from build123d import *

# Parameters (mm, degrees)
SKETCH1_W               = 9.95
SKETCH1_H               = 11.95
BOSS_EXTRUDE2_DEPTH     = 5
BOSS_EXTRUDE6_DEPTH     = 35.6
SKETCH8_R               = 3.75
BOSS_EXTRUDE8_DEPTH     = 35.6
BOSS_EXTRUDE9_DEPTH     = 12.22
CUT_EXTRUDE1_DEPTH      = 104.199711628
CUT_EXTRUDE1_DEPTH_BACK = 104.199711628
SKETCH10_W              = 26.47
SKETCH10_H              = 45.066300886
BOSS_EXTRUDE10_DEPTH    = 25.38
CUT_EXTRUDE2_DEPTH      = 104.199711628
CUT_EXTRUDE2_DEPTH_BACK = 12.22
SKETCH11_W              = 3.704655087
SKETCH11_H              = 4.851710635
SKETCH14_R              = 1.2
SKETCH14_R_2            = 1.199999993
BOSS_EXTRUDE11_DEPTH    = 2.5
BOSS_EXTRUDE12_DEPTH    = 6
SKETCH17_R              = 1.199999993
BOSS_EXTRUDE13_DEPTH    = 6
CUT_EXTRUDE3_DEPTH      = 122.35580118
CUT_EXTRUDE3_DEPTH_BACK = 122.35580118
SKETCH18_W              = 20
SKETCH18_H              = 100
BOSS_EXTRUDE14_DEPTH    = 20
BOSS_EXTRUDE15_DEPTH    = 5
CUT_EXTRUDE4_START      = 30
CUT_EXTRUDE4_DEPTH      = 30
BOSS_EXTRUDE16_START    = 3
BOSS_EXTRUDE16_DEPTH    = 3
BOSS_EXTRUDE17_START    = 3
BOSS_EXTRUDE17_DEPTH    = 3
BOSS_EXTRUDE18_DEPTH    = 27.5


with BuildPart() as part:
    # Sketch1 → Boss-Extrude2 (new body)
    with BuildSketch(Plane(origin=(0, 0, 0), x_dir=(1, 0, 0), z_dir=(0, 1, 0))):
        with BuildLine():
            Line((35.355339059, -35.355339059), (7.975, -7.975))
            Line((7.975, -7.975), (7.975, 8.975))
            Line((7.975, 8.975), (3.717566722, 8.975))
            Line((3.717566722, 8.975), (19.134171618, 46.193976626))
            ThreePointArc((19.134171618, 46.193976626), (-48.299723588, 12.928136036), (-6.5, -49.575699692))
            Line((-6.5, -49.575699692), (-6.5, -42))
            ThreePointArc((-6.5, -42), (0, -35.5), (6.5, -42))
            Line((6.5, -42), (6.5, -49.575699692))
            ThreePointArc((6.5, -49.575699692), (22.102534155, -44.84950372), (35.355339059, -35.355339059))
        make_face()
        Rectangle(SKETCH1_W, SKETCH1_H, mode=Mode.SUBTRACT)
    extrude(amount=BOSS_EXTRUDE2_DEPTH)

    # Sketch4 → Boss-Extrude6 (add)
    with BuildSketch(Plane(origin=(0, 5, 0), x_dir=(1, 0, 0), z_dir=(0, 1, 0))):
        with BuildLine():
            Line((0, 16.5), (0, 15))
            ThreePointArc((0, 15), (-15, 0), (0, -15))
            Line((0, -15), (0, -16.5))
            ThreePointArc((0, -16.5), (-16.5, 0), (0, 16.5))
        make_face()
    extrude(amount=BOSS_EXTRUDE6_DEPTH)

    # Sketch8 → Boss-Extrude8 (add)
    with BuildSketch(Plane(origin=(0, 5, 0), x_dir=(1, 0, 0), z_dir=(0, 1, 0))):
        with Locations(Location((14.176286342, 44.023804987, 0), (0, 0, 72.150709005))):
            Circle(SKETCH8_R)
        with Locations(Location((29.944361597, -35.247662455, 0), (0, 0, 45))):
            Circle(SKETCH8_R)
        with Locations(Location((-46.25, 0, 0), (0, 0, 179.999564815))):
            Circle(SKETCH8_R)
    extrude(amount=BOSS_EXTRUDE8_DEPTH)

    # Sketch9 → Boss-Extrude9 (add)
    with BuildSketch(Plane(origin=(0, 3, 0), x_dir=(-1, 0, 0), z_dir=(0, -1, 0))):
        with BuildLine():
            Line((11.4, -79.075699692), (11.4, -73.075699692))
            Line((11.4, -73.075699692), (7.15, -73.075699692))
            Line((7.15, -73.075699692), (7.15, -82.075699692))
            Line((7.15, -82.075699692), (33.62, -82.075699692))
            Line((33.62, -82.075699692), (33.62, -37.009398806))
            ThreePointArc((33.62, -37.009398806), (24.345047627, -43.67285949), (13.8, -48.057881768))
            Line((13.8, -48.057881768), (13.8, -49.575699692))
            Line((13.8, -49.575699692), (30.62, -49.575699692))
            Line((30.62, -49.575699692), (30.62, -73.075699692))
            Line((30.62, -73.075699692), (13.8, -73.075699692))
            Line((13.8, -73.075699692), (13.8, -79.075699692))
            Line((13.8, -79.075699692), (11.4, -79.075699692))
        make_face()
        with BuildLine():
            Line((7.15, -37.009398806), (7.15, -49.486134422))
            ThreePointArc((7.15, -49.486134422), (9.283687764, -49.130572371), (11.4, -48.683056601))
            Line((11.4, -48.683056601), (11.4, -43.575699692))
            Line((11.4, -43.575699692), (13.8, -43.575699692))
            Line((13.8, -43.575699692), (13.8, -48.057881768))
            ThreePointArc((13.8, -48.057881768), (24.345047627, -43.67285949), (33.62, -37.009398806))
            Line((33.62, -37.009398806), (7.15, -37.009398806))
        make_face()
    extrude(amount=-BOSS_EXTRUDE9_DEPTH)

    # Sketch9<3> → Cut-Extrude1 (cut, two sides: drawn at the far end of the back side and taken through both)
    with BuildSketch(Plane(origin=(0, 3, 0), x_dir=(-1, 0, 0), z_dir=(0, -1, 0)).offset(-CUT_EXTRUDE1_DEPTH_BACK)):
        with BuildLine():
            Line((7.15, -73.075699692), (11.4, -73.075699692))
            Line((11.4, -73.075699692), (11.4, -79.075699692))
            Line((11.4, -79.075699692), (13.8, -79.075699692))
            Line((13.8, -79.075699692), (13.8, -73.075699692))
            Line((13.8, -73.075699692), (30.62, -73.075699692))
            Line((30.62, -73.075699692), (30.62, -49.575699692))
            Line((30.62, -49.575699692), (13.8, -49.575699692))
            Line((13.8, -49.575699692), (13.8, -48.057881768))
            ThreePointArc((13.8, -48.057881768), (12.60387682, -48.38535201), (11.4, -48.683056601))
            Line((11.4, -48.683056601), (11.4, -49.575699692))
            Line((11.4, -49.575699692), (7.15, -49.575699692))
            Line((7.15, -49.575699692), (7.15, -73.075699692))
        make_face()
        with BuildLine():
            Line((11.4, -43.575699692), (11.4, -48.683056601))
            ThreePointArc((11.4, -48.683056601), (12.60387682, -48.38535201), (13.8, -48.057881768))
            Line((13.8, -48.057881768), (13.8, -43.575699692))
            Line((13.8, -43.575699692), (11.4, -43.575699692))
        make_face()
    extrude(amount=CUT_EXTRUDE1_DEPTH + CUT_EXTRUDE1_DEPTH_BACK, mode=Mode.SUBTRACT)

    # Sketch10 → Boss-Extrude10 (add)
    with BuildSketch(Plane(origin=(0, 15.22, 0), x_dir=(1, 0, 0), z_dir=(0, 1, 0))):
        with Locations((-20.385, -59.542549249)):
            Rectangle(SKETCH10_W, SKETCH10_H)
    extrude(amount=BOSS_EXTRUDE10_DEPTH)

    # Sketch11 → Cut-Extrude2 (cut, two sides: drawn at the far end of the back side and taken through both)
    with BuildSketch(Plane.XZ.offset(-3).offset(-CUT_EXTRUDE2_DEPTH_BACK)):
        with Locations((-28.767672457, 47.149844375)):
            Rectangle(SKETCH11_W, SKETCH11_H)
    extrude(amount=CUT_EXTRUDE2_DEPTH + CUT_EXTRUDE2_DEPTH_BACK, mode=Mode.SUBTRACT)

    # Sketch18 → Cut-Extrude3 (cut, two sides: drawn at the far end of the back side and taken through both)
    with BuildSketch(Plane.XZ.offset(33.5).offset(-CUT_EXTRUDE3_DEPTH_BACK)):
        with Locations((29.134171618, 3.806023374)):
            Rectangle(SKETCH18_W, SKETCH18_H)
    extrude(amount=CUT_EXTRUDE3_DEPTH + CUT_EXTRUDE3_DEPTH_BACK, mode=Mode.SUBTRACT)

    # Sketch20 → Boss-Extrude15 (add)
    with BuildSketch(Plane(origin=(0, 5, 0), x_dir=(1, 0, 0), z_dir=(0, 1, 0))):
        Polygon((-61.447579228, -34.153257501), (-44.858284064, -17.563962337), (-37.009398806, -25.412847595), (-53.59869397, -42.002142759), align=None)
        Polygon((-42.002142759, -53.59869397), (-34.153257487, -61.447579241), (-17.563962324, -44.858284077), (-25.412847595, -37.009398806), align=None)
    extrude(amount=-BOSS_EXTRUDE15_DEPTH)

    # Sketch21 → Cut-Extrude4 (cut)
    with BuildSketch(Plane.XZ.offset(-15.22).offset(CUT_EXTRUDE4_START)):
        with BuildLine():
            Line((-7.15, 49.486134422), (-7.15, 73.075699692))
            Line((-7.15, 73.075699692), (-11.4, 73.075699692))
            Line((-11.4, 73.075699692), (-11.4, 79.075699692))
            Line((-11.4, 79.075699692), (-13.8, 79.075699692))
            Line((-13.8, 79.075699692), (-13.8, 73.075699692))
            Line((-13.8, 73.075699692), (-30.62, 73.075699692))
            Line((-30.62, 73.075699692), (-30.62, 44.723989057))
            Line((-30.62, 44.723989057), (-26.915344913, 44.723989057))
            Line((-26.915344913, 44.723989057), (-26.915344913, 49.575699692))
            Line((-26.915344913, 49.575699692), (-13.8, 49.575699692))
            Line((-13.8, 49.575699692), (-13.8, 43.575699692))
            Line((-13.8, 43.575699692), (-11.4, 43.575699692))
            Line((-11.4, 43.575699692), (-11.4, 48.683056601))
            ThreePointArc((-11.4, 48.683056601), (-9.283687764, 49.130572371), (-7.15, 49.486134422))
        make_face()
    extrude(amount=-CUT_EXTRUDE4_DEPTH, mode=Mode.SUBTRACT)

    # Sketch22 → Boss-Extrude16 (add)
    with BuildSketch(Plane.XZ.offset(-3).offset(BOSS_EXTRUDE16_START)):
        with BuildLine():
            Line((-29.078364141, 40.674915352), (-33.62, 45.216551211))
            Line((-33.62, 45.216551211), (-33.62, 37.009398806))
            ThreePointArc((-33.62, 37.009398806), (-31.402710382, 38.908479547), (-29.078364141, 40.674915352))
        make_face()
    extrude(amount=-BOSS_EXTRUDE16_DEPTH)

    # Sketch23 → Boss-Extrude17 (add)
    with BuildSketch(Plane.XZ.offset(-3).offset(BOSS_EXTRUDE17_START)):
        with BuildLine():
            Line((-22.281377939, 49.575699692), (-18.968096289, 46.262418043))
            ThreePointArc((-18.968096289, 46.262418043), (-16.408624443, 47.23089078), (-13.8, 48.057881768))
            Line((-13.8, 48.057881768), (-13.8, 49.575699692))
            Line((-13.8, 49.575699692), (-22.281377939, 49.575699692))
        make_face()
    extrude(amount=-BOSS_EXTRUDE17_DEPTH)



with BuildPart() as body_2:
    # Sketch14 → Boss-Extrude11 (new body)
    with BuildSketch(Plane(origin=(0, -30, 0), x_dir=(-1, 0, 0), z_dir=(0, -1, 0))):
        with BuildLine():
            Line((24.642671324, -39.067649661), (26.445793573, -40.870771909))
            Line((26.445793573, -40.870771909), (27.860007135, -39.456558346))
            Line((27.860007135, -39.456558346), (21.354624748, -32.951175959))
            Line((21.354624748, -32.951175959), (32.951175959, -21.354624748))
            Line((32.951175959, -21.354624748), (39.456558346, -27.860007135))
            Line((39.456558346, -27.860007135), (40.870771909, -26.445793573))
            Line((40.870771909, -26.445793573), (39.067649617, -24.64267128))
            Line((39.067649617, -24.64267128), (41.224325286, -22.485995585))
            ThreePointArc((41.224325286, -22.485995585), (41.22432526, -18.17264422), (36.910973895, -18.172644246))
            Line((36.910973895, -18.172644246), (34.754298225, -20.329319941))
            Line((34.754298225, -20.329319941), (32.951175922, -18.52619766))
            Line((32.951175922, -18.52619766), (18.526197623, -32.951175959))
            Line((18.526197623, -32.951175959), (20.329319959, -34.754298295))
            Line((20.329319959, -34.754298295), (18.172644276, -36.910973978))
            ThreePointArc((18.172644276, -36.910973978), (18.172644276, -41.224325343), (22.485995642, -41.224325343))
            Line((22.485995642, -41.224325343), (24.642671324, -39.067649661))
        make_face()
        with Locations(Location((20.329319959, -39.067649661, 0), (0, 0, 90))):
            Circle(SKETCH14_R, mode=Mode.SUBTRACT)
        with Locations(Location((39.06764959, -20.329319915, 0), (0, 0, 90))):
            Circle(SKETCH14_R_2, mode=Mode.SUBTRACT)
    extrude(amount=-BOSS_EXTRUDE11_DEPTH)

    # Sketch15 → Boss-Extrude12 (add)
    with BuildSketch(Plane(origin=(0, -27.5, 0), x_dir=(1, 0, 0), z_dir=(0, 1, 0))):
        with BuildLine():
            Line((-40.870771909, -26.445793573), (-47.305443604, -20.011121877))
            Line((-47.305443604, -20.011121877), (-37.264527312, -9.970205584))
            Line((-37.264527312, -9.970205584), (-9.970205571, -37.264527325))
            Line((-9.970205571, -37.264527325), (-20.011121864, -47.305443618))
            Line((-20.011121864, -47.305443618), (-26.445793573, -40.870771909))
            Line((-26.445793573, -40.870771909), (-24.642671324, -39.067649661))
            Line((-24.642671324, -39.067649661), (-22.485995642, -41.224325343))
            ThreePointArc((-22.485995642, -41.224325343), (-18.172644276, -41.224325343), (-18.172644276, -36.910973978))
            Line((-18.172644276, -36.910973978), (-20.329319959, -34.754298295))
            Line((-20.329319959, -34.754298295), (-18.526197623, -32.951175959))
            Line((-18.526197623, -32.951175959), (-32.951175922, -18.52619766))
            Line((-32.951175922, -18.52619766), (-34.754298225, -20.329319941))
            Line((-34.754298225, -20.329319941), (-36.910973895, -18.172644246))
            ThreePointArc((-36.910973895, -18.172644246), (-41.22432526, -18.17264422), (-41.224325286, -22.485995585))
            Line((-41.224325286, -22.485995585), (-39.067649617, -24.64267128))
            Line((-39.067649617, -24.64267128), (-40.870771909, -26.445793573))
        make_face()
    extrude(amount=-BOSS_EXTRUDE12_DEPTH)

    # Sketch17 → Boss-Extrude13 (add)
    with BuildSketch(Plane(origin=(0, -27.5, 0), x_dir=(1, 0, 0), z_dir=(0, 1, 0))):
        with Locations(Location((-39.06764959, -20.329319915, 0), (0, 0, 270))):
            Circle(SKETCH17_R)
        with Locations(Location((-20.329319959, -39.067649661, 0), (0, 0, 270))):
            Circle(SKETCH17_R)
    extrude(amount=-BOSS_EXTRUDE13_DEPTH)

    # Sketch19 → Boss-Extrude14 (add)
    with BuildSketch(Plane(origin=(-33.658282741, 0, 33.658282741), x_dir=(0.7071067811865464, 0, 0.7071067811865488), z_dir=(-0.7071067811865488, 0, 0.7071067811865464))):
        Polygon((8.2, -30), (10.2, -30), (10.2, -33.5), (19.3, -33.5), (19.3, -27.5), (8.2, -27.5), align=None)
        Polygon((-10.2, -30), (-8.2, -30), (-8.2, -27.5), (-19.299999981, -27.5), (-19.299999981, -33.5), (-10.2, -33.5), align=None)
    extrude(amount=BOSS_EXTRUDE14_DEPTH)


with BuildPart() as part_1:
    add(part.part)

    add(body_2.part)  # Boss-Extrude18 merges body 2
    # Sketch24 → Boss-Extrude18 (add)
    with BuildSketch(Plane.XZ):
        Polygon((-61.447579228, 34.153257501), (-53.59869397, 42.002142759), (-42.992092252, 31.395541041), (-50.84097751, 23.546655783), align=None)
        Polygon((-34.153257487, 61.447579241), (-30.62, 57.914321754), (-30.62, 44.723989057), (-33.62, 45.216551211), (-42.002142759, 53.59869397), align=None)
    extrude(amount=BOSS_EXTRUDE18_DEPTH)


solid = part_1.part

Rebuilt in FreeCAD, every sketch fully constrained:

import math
import FreeCAD as App
import Part
import Sketcher
Q = App.Units.Quantity

doc = App.newDocument("Part")
body = doc.addObject("PartDesign::Body", "Body")

# Sketch on XZ plane
sketch1 = body.newObject("Sketcher::SketchObject", "Sketch")
sketch1.AttachmentSupport = (doc.getObject("XZ_Plane"), [""])
sketch1.MapMode = "FlatFace"
sketch1.addGeometry([
    Part.LineSegment(App.Vector(35.4, 35.4, 0), App.Vector(8, 8, 0)),  # 0
    Part.LineSegment(App.Vector(8, 8, 0), App.Vector(8, -9, 0)),  # 1
    Part.LineSegment(App.Vector(8, -9, 0), App.Vector(3.7, -9, 0)),  # 2
    Part.LineSegment(App.Vector(3.7, -9, 0), App.Vector(19.1, -46.2, 0)),  # 3
    Part.ArcOfCircle(Part.Circle(App.Vector(0, 0, 0), App.Vector(0, 0, 1), 50), math.radians(97), math.radians(292)),  # 4
    Part.LineSegment(App.Vector(-6.5, 49.6, 0), App.Vector(-6.5, 42, 0)),  # 5
    Part.ArcOfCircle(Part.Circle(App.Vector(0, 42, 0), App.Vector(0, 0, 1), 6.5), math.radians(180), math.radians(360)),  # 6
    Part.LineSegment(App.Vector(6.5, 42, 0), App.Vector(6.5, 49.6, 0)),  # 7
    Part.ArcOfCircle(Part.Circle(App.Vector(0, 0, 0), App.Vector(0, 0, 1), 50), math.radians(45), math.radians(83)),  # 8
    Part.LineSegment(App.Vector(5, 6, 0), App.Vector(-5, 6, 0)),  # 9
    Part.LineSegment(App.Vector(-5, 6, 0), App.Vector(-5, -6, 0)),  # 10
    Part.LineSegment(App.Vector(-5, -6, 0), App.Vector(5, -6, 0)),  # 11
    Part.LineSegment(App.Vector(5, -6, 0), App.Vector(5, 6, 0)),  # 12
], False)
sketch1.addConstraint([
    Sketcher.Constraint("Coincident", 0, 2, 1, 1),
    Sketcher.Constraint("Coincident", 1, 2, 2, 1),
    Sketcher.Constraint("Coincident", 2, 2, 3, 1),
    Sketcher.Constraint("Coincident", 3, 2, 4, 2),
    Sketcher.Constraint("Coincident", 4, 1, 5, 1),
    Sketcher.Constraint("Tangent", 5, 2, 6, 1),
    Sketcher.Constraint("Tangent", 6, 2, 7, 1),
    Sketcher.Constraint("Coincident", 7, 2, 8, 2),
    Sketcher.Constraint("Coincident", 8, 1, 0, 1),
    Sketcher.Constraint("Coincident", 9, 2, 10, 1),
    Sketcher.Constraint("Coincident", 10, 2, 11, 1),
    Sketcher.Constraint("Coincident", 11, 2, 12, 1),
    Sketcher.Constraint("Coincident", 12, 2, 9, 1),
    Sketcher.Constraint("Vertical", 1),
    Sketcher.Constraint("Horizontal", 2),
    Sketcher.Constraint("Vertical", 5),
    Sketcher.Constraint("Vertical", 7),
    Sketcher.Constraint("Horizontal", 9),
    Sketcher.Constraint("Vertical", 10),
    Sketcher.Constraint("Horizontal", 11),
    Sketcher.Constraint("Vertical", 12),
    Sketcher.Constraint("Coincident", 4, 3, -1, 1),
    Sketcher.Constraint("Coincident", 8, 3, -1, 1),
    Sketcher.Constraint("Equal", 4, 8),
    Sketcher.Constraint("Symmetric", 9, 2, 11, 2, -1, 1),
    Sketcher.Constraint("PointOnObject", 6, 3, -2),
    Sketcher.Constraint("Radius", 4, 50.0),
    Sketcher.Constraint("Radius", 6, 6.5),
    Sketcher.Constraint("Angle", 0, Q("-135 deg")),
    Sketcher.Constraint("DistanceY", -1, 1, 6, 3, 42.0),
    Sketcher.Constraint("Angle", 3, Q("-67.5 deg")),
    Sketcher.Constraint("DistanceY", 9, 2, 0, 2, 2.0),
    Sketcher.Constraint("DistanceY", 2, 2, 10, 2, 3.0),
    Sketcher.Constraint("DistanceX", 11, 2, 1, 2, 3.0),
    Sketcher.Constraint("DistanceX", 9, 2, 9, 1, 9.95),
    Sketcher.Constraint("DistanceY", 1, 2, 1, 1, 16.95),
    Sketcher.Constraint("Distance", 3, 40.28553),
])
pad1 = body.newObject("PartDesign::Pad", "Pad")
pad1.Profile = sketch1
pad1.Length = 5
pad1.Reversed = True

# Sketch on XZ plane
sketch2 = body.newObject("Sketcher::SketchObject", "Sketch001")
sketch2.AttachmentSupport = (doc.getObject("XZ_Plane"), [""])
sketch2.MapMode = "FlatFace"
sketch2.AttachmentOffset = App.Placement(App.Vector(0, 0, -5), App.Rotation())
sketch2.addGeometry([
    Part.LineSegment(App.Vector(0, -15, 0), App.Vector(0, -16.5, 0)),
    Part.ArcOfCircle(Part.Circle(App.Vector(0, 0, 0), App.Vector(0, 0, 1), 16.5), math.radians(90), math.radians(270)),
    Part.LineSegment(App.Vector(0, 16.5, 0), App.Vector(0, 15, 0)),
    Part.ArcOfCircle(Part.Circle(App.Vector(0, 0, 0), App.Vector(0, 0, 1), 15), math.radians(90), math.radians(270)),
], False)
sketch2.addConstraint([
    Sketcher.Constraint("Coincident", 0, 2, 1, 2),
    Sketcher.Constraint("Coincident", 1, 1, 2, 1),
    Sketcher.Constraint("Coincident", 2, 2, 3, 1),
    Sketcher.Constraint("Coincident", 3, 2, 0, 1),
    Sketcher.Constraint("Vertical", 0),
    Sketcher.Constraint("Vertical", 2),
    Sketcher.Constraint("Coincident", 1, 3, -1, 1),
    Sketcher.Constraint("Coincident", 3, 3, -1, 1),
    Sketcher.Constraint("PointOnObject", 0, 2, -2),
    Sketcher.Constraint("PointOnObject", 1, 1, -2),
    Sketcher.Constraint("Radius", 3, 15.0),
    Sketcher.Constraint("Radius", 1, 16.5),
])
pad2 = body.newObject("PartDesign::Pad", "Pad001")
pad2.Profile = sketch2
pad2.Length = 35.6
pad2.Reversed = True

# Sketch on XZ plane
sketch3 = body.newObject("Sketcher::SketchObject", "Sketch002")
sketch3.AttachmentSupport = (doc.getObject("XZ_Plane"), [""])
sketch3.MapMode = "FlatFace"
sketch3.AttachmentOffset = App.Placement(App.Vector(0, 0, -5), App.Rotation())
sketch3.addGeometry([
    Part.Circle(App.Vector(14.2, -44, 0), App.Vector(0, 0, 1), 3.8),
    Part.Circle(App.Vector(29.9, 35.2, 0), App.Vector(0, 0, 1), 3.8),
    Part.Circle(App.Vector(-46.2, 0, 0), App.Vector(0, 0, 1), 3.8),
], False)
sketch3.addConstraint([
    Sketcher.Constraint("Equal", 0, 1),
    Sketcher.Constraint("Equal", 1, 2),
    Sketcher.Constraint("PointOnObject", 2, 3, -1),
    Sketcher.Constraint("Diameter", 0, 7.5),
    Sketcher.Constraint("DistanceX", 2, 3, -1, 1, 46.25),
    Sketcher.Constraint("DistanceX", -1, 1, 1, 3, 29.944362),
    Sketcher.Constraint("DistanceX", -1, 1, 0, 3, 14.176286),
    Sketcher.Constraint("DistanceY", 0, 3, -1, 1, 44.023805),
    Sketcher.Constraint("DistanceY", -1, 1, 1, 3, 35.247662),
])
pad3 = body.newObject("PartDesign::Pad", "Pad002")
pad3.Profile = sketch3
pad3.Length = 35.6
pad3.Reversed = True

# Sketch on XZ plane
sketch4 = body.newObject("Sketcher::SketchObject", "Sketch003")
sketch4.AttachmentSupport = (doc.getObject("XZ_Plane"), [""])
sketch4.MapMode = "FlatFace"
sketch4.AttachmentOffset = App.Placement(App.Vector(0, 0, -3), App.Rotation())
sketch4.addGeometry([
    Part.LineSegment(App.Vector(-11.4, 79.1, 0), App.Vector(-11.4, 73.1, 0)),  # 0
    Part.LineSegment(App.Vector(-11.4, 73.1, 0), App.Vector(-7.2, 73.1, 0)),  # 1
    Part.LineSegment(App.Vector(-7.2, 73.1, 0), App.Vector(-7.2, 82.1, 0)),  # 2
    Part.LineSegment(App.Vector(-7.2, 82.1, 0), App.Vector(-33.6, 82.1, 0)),  # 3
    Part.LineSegment(App.Vector(-33.6, 82.1, 0), App.Vector(-33.6, 37, 0)),  # 4
    Part.LineSegment(App.Vector(-33.6, 37, 0), App.Vector(-7.2, 37, 0)),  # 5
    Part.LineSegment(App.Vector(-7.2, 37, 0), App.Vector(-7.2, 49.5, 0)),  # 6
    Part.ArcOfCircle(Part.Circle(App.Vector(0, 0, 0), App.Vector(0, 0, 1), 50), math.radians(98.22), math.radians(103.18)),  # 7
    Part.LineSegment(App.Vector(-11.4, 48.7, 0), App.Vector(-11.4, 43.6, 0)),  # 8
    Part.LineSegment(App.Vector(-11.4, 43.6, 0), App.Vector(-13.8, 43.6, 0)),  # 9
    Part.LineSegment(App.Vector(-13.8, 43.6, 0), App.Vector(-13.8, 49.6, 0)),  # 10
    Part.LineSegment(App.Vector(-13.8, 49.6, 0), App.Vector(-30.6, 49.6, 0)),  # 11
    Part.LineSegment(App.Vector(-30.6, 49.6, 0), App.Vector(-30.6, 73.1, 0)),  # 12
    Part.LineSegment(App.Vector(-30.6, 73.1, 0), App.Vector(-13.8, 73.1, 0)),  # 13
    Part.LineSegment(App.Vector(-13.8, 73.1, 0), App.Vector(-13.8, 79.1, 0)),  # 14
    Part.LineSegment(App.Vector(-13.8, 79.1, 0), App.Vector(-11.4, 79.1, 0)),  # 15
], False)
sketch4.addConstraint([
    Sketcher.Constraint("Coincident", 0, 2, 1, 1),
    Sketcher.Constraint("Coincident", 1, 2, 2, 1),
    Sketcher.Constraint("Coincident", 2, 2, 3, 1),
    Sketcher.Constraint("Coincident", 3, 2, 4, 1),
    Sketcher.Constraint("Coincident", 4, 2, 5, 1),
    Sketcher.Constraint("Coincident", 5, 2, 6, 1),
    Sketcher.Constraint("Coincident", 6, 2, 7, 1),
    Sketcher.Constraint("Coincident", 7, 2, 8, 1),
    Sketcher.Constraint("Coincident", 8, 2, 9, 1),
    Sketcher.Constraint("Coincident", 9, 2, 10, 1),
    Sketcher.Constraint("Coincident", 10, 2, 11, 1),
    Sketcher.Constraint("Coincident", 11, 2, 12, 1),
    Sketcher.Constraint("Coincident", 12, 2, 13, 1),
    Sketcher.Constraint("Coincident", 13, 2, 14, 1),
    Sketcher.Constraint("Coincident", 14, 2, 15, 1),
    Sketcher.Constraint("Coincident", 15, 2, 0, 1),
    Sketcher.Constraint("Vertical", 0),
    Sketcher.Constraint("Horizontal", 1),
    Sketcher.Constraint("Vertical", 2),
    Sketcher.Constraint("Horizontal", 3),
    Sketcher.Constraint("Vertical", 4),
    Sketcher.Constraint("Horizontal", 5),
    Sketcher.Constraint("Vertical", 6),
    Sketcher.Constraint("Vertical", 8),
    Sketcher.Constraint("Horizontal", 9),
    Sketcher.Constraint("Vertical", 10),
    Sketcher.Constraint("Horizontal", 11),
    Sketcher.Constraint("Vertical", 12),
    Sketcher.Constraint("Horizontal", 13),
    Sketcher.Constraint("Vertical", 14),
    Sketcher.Constraint("Horizontal", 15),
    Sketcher.Constraint("Coincident", 7, 3, -1, 1),
    Sketcher.Constraint("Horizontal", 1, 2, 12, 2),
    Sketcher.Constraint("Vertical", 2, 2, 5, 2),
    Sketcher.Constraint("Vertical", 0, 2, 7, 2),
    Sketcher.Constraint("Vertical", 10, 2, 13, 2),
    Sketcher.Constraint("Equal", 0, 10),
    Sketcher.Constraint("Radius", 7, 50.0),
    Sketcher.Constraint("DistanceY", 0, 2, 0, 1, 6.0),
    Sketcher.Constraint("DistanceY", 2, 1, 2, 2, 9.0),
    Sketcher.Constraint("DistanceX", 9, 2, 9, 1, 2.4),
    Sketcher.Constraint("DistanceY", 12, 1, 12, 2, 23.5),
    Sketcher.Constraint("DistanceX", 4, 2, 11, 2, 3.0),
    Sketcher.Constraint("DistanceX", 1, 1, 1, 2, 4.25),
    Sketcher.Constraint("DistanceX", 3, 2, 3, 1, 26.47),
    Sketcher.Constraint("DistanceX", 0, 2, -1, 1, 11.4),
    Sketcher.Constraint("DistanceY", 4, 2, 4, 1, 45.066301),
    Sketcher.Constraint("DistanceY", -1, 1, 0, 2, 73.0757),
])
pad4 = body.newObject("PartDesign::Pad", "Pad003")
pad4.Profile = sketch4
pad4.Length = 12.22
pad4.Reversed = True

# Sketch on XZ plane
sketch5 = body.newObject("Sketcher::SketchObject", "Sketch004")
sketch5.AttachmentSupport = (doc.getObject("XZ_Plane"), [""])
sketch5.MapMode = "FlatFace"
sketch5.AttachmentOffset = App.Placement(App.Vector(0, 0, -3), App.Rotation())
sketch5.addGeometry([
    Part.LineSegment(App.Vector(-7.2, 73.1, 0), App.Vector(-11.4, 73.1, 0)),  # 0
    Part.LineSegment(App.Vector(-11.4, 73.1, 0), App.Vector(-11.4, 79.1, 0)),  # 1
    Part.LineSegment(App.Vector(-11.4, 79.1, 0), App.Vector(-13.8, 79.1, 0)),  # 2
    Part.LineSegment(App.Vector(-13.8, 79.1, 0), App.Vector(-13.8, 73.1, 0)),  # 3
    Part.LineSegment(App.Vector(-13.8, 73.1, 0), App.Vector(-30.6, 73.1, 0)),  # 4
    Part.LineSegment(App.Vector(-30.6, 73.1, 0), App.Vector(-30.6, 49.6, 0)),  # 5
    Part.LineSegment(App.Vector(-30.6, 49.6, 0), App.Vector(-13.8, 49.6, 0)),  # 6
    Part.LineSegment(App.Vector(-13.8, 49.6, 0), App.Vector(-13.8, 43.6, 0)),  # 7
    Part.LineSegment(App.Vector(-13.8, 43.6, 0), App.Vector(-11.4, 43.6, 0)),  # 8
    Part.LineSegment(App.Vector(-11.4, 43.6, 0), App.Vector(-11.4, 49.6, 0)),  # 9
    Part.LineSegment(App.Vector(-11.4, 49.6, 0), App.Vector(-7.2, 49.6, 0)),  # 10
    Part.LineSegment(App.Vector(-7.2, 49.6, 0), App.Vector(-7.2, 73.1, 0)),  # 11
], False)
sketch5.addConstraint([
    Sketcher.Constraint("Coincident", 0, 2, 1, 1),
    Sketcher.Constraint("Coincident", 1, 2, 2, 1),
    Sketcher.Constraint("Coincident", 2, 2, 3, 1),
    Sketcher.Constraint("Coincident", 3, 2, 4, 1),
    Sketcher.Constraint("Coincident", 4, 2, 5, 1),
    Sketcher.Constraint("Coincident", 5, 2, 6, 1),
    Sketcher.Constraint("Coincident", 6, 2, 7, 1),
    Sketcher.Constraint("Coincident", 7, 2, 8, 1),
    Sketcher.Constraint("Coincident", 8, 2, 9, 1),
    Sketcher.Constraint("Coincident", 9, 2, 10, 1),
    Sketcher.Constraint("Coincident", 10, 2, 11, 1),
    Sketcher.Constraint("Coincident", 11, 2, 0, 1),
    Sketcher.Constraint("Horizontal", 0),
    Sketcher.Constraint("Vertical", 1),
    Sketcher.Constraint("Horizontal", 2),
    Sketcher.Constraint("Vertical", 3),
    Sketcher.Constraint("Horizontal", 4),
    Sketcher.Constraint("Vertical", 5),
    Sketcher.Constraint("Horizontal", 6),
    Sketcher.Constraint("Vertical", 7),
    Sketcher.Constraint("Horizontal", 8),
    Sketcher.Constraint("Vertical", 9),
    Sketcher.Constraint("Horizontal", 10),
    Sketcher.Constraint("Vertical", 11),
    Sketcher.Constraint("Horizontal", 0, 2, 3, 2),
    Sketcher.Constraint("Horizontal", 6, 2, 9, 2),
    Sketcher.Constraint("Vertical", 3, 2, 6, 2),
    Sketcher.Constraint("Vertical", 1, 2, 8, 2),
    Sketcher.Constraint("Equal", 3, 7),
    Sketcher.Constraint("DistanceY", 1, 1, 1, 2, 6.0),
    Sketcher.Constraint("DistanceX", 2, 2, 2, 1, 2.4),
    Sketcher.Constraint("DistanceY", 5, 2, 5, 1, 23.5),
    Sketcher.Constraint("DistanceX", 0, 2, 0, 1, 4.25),
    Sketcher.Constraint("DistanceX", 4, 2, 4, 1, 16.82),
    Sketcher.Constraint("DistanceX", 0, 2, -1, 1, 11.4),
    Sketcher.Constraint("DistanceY", -1, 1, 0, 2, 73.0757),
])
pocket1 = body.newObject("PartDesign::Pocket", "Pocket")
pocket1.Profile = sketch5
pocket1.Type = "ThroughAll"
pocket1.Midplane = True

# Sketch on XZ plane
sketch6 = body.newObject("Sketcher::SketchObject", "Sketch005")
sketch6.AttachmentSupport = (doc.getObject("XZ_Plane"), [""])
sketch6.MapMode = "FlatFace"
sketch6.AttachmentOffset = App.Placement(App.Vector(0, 0, -15.22), App.Rotation())
sketch6.addGeometry([
    Part.LineSegment(App.Vector(-34, 37, 0), App.Vector(-34, 82, 0)),
    Part.LineSegment(App.Vector(-34, 82, 0), App.Vector(-7, 82, 0)),
    Part.LineSegment(App.Vector(-7, 82, 0), App.Vector(-7, 37, 0)),
    Part.LineSegment(App.Vector(-7, 37, 0), App.Vector(-34, 37, 0)),
], False)
sketch6.addConstraint([
    Sketcher.Constraint("Coincident", 0, 2, 1, 1),
    Sketcher.Constraint("Coincident", 1, 2, 2, 1),
    Sketcher.Constraint("Coincident", 2, 2, 3, 1),
    Sketcher.Constraint("Coincident", 3, 2, 0, 1),
    Sketcher.Constraint("Vertical", 0),
    Sketcher.Constraint("Horizontal", 1),
    Sketcher.Constraint("Vertical", 2),
    Sketcher.Constraint("Horizontal", 3),
    Sketcher.Constraint("DistanceX", 1, 1, 1, 2, 26.47),
    Sketcher.Constraint("DistanceX", 0, 2, -1, 1, 33.62),
    Sketcher.Constraint("DistanceY", 0, 1, 0, 2, 45.066301),
    Sketcher.Constraint("DistanceY", -1, 1, 0, 2, 82.0757),
])
pad5 = body.newObject("PartDesign::Pad", "Pad004")
pad5.Profile = sketch6
pad5.Length = 25.38
pad5.Reversed = True

# Sketch on XZ plane
sketch7 = body.newObject("Sketcher::SketchObject", "Sketch006")
sketch7.AttachmentSupport = (doc.getObject("XZ_Plane"), [""])
sketch7.MapMode = "FlatFace"
sketch7.AttachmentOffset = App.Placement(App.Vector(0, 0, -3), App.Rotation())
sketch7.addGeometry([
    Part.LineSegment(App.Vector(-30.6, 49.6, 0), App.Vector(-30.6, 44.7, 0)),
    Part.LineSegment(App.Vector(-30.6, 44.7, 0), App.Vector(-26.9, 44.7, 0)),
    Part.LineSegment(App.Vector(-26.9, 44.7, 0), App.Vector(-26.9, 49.6, 0)),
    Part.LineSegment(App.Vector(-26.9, 49.6, 0), App.Vector(-30.6, 49.6, 0)),
], False)
sketch7.addConstraint([
    Sketcher.Constraint("Coincident", 0, 2, 1, 1),
    Sketcher.Constraint("Coincident", 1, 2, 2, 1),
    Sketcher.Constraint("Coincident", 2, 2, 3, 1),
    Sketcher.Constraint("Coincident", 3, 2, 0, 1),
    Sketcher.Constraint("Vertical", 0),
    Sketcher.Constraint("Horizontal", 1),
    Sketcher.Constraint("Vertical", 2),
    Sketcher.Constraint("Horizontal", 3),
    Sketcher.Constraint("DistanceX", 0, 2, -1, 1, 30.62),
    Sketcher.Constraint("DistanceY", 0, 2, 0, 1, 4.851711),
    Sketcher.Constraint("DistanceY", -1, 1, 2, 2, 49.5757),
    Sketcher.Constraint("DistanceX", 1, 1, 1, 2, 3.704655),
])
pocket2 = body.newObject("PartDesign::Pocket", "Pocket001")
pocket2.Profile = sketch7
pocket2.Type = "TwoLengths"
pocket2.Length = 104.199712
pocket2.Length2 = 12.22
pocket2.Reversed = True

# Sketch on XZ plane
sketch8 = body.newObject("Sketcher::SketchObject", "Sketch007")
sketch8.AttachmentSupport = (doc.getObject("XZ_Plane"), [""])
sketch8.MapMode = "FlatFace"
sketch8.AttachmentOffset = App.Placement(App.Vector(0, 0, 33.5), App.Rotation())
sketch8.addGeometry([
    Part.LineSegment(App.Vector(19, 54, 0), App.Vector(19, -46, 0)),
    Part.LineSegment(App.Vector(19, -46, 0), App.Vector(39, -46, 0)),
    Part.LineSegment(App.Vector(39, -46, 0), App.Vector(39, 54, 0)),
    Part.LineSegment(App.Vector(39, 54, 0), App.Vector(19, 54, 0)),
], False)
sketch8.addConstraint([
    Sketcher.Constraint("Coincident", 0, 2, 1, 1),
    Sketcher.Constraint("Coincident", 1, 2, 2, 1),
    Sketcher.Constraint("Coincident", 2, 2, 3, 1),
    Sketcher.Constraint("Coincident", 3, 2, 0, 1),
    Sketcher.Constraint("Vertical", 0),
    Sketcher.Constraint("Horizontal", 1),
    Sketcher.Constraint("Vertical", 2),
    Sketcher.Constraint("Horizontal", 3),
    Sketcher.Constraint("DistanceX", 1, 1, 1, 2, 20.0),
    Sketcher.Constraint("DistanceY", 0, 2, 0, 1, 100.0),
    Sketcher.Constraint("DistanceX", -1, 1, 0, 2, 19.134172),
    Sketcher.Constraint("DistanceY", 0, 2, -1, 1, 46.193977),
])
pocket3 = body.newObject("PartDesign::Pocket", "Pocket002")
pocket3.Profile = sketch8
pocket3.Type = "ThroughAll"
pocket3.Midplane = True

# Sketch on XZ plane
sketch9 = body.newObject("Sketcher::SketchObject", "Sketch008")
sketch9.AttachmentSupport = (doc.getObject("XZ_Plane"), [""])
sketch9.MapMode = "FlatFace"
sketch9.AttachmentOffset = App.Placement(App.Vector(0, 0, -5), App.Rotation())
sketch9.addGeometry([
    Part.LineSegment(App.Vector(-45, 18, 0), App.Vector(-61, 34, 0)),  # 0
    Part.LineSegment(App.Vector(-61, 34, 0), App.Vector(-54, 42, 0)),  # 1
    Part.LineSegment(App.Vector(-54, 42, 0), App.Vector(-37, 25, 0)),  # 2
    Part.LineSegment(App.Vector(-37, 25, 0), App.Vector(-45, 18, 0)),  # 3
    Part.LineSegment(App.Vector(-42, 54, 0), App.Vector(-34, 61, 0)),  # 4
    Part.LineSegment(App.Vector(-34, 61, 0), App.Vector(-18, 45, 0)),  # 5
    Part.LineSegment(App.Vector(-18, 45, 0), App.Vector(-25, 37, 0)),  # 6
    Part.LineSegment(App.Vector(-25, 37, 0), App.Vector(-42, 54, 0)),  # 7
], False)
sketch9.addConstraint([
    Sketcher.Constraint("Coincident", 0, 2, 1, 1),
    Sketcher.Constraint("Coincident", 1, 2, 2, 1),
    Sketcher.Constraint("Coincident", 2, 2, 3, 1),
    Sketcher.Constraint("Coincident", 3, 2, 0, 1),
    Sketcher.Constraint("Coincident", 4, 2, 5, 1),
    Sketcher.Constraint("Coincident", 5, 2, 6, 1),
    Sketcher.Constraint("Coincident", 6, 2, 7, 1),
    Sketcher.Constraint("Coincident", 7, 2, 4, 1),
    Sketcher.Constraint("Perpendicular", 0, 1),
    Sketcher.Constraint("Perpendicular", 1, 2),
    Sketcher.Constraint("Perpendicular", 2, 3),
    Sketcher.Constraint("Parallel", 3, 4),
    Sketcher.Constraint("Perpendicular", 4, 5),
    Sketcher.Constraint("Perpendicular", 5, 6),
    Sketcher.Constraint("Perpendicular", 6, 7),
    Sketcher.Constraint("Equal", 3, 4),
    Sketcher.Constraint("Equal", 2, 5),
    Sketcher.Constraint("Angle", 0, Q("135 deg")),
    Sketcher.Constraint("Distance", 1, 11.1),
    Sketcher.Constraint("DistanceX", 2, 2, -1, 1, 37.009399),
    Sketcher.Constraint("DistanceY", -1, 1, 6, 2, 37.009399),
    Sketcher.Constraint("DistanceX", 0, 2, -1, 1, 61.447579),
    Sketcher.Constraint("DistanceX", 2, 2, 4, 2, 2.856141),
    Sketcher.Constraint("DistanceY", 2, 2, 4, 2, 36.034732),
])
pad6 = body.newObject("PartDesign::Pad", "Pad005")
pad6.Profile = sketch9
pad6.Length = 5

# Sketch on XZ plane
sketch10 = body.newObject("Sketcher::SketchObject", "Sketch009")
sketch10.AttachmentSupport = (doc.getObject("XZ_Plane"), [""])
sketch10.MapMode = "FlatFace"
sketch10.AttachmentOffset = App.Placement(App.Vector(0, 0, 14.78), App.Rotation())
sketch10.addGeometry([
    Part.LineSegment(App.Vector(-7.2, 49.5, 0), App.Vector(-7.2, 73.1, 0)),  # 0
    Part.LineSegment(App.Vector(-7.2, 73.1, 0), App.Vector(-11.4, 73.1, 0)),  # 1
    Part.LineSegment(App.Vector(-11.4, 73.1, 0), App.Vector(-11.4, 79.1, 0)),  # 2
    Part.LineSegment(App.Vector(-11.4, 79.1, 0), App.Vector(-13.8, 79.1, 0)),  # 3
    Part.LineSegment(App.Vector(-13.8, 79.1, 0), App.Vector(-13.8, 73.1, 0)),  # 4
    Part.LineSegment(App.Vector(-13.8, 73.1, 0), App.Vector(-30.6, 73.1, 0)),  # 5
    Part.LineSegment(App.Vector(-30.6, 73.1, 0), App.Vector(-30.6, 44.7, 0)),  # 6
    Part.LineSegment(App.Vector(-30.6, 44.7, 0), App.Vector(-26.9, 44.7, 0)),  # 7
    Part.LineSegment(App.Vector(-26.9, 44.7, 0), App.Vector(-26.9, 49.6, 0)),  # 8
    Part.LineSegment(App.Vector(-26.9, 49.6, 0), App.Vector(-13.8, 49.6, 0)),  # 9
    Part.LineSegment(App.Vector(-13.8, 49.6, 0), App.Vector(-13.8, 43.6, 0)),  # 10
    Part.LineSegment(App.Vector(-13.8, 43.6, 0), App.Vector(-11.4, 43.6, 0)),  # 11
    Part.LineSegment(App.Vector(-11.4, 43.6, 0), App.Vector(-11.4, 48.7, 0)),  # 12
    Part.ArcOfCircle(Part.Circle(App.Vector(0, 0, 0), App.Vector(0, 0, 1), 50), math.radians(98.22), math.radians(103.18)),  # 13
], False)
sketch10.addConstraint([
    Sketcher.Constraint("Coincident", 0, 2, 1, 1),
    Sketcher.Constraint("Coincident", 1, 2, 2, 1),
    Sketcher.Constraint("Coincident", 2, 2, 3, 1),
    Sketcher.Constraint("Coincident", 3, 2, 4, 1),
    Sketcher.Constraint("Coincident", 4, 2, 5, 1),
    Sketcher.Constraint("Coincident", 5, 2, 6, 1),
    Sketcher.Constraint("Coincident", 6, 2, 7, 1),
    Sketcher.Constraint("Coincident", 7, 2, 8, 1),
    Sketcher.Constraint("Coincident", 8, 2, 9, 1),
    Sketcher.Constraint("Coincident", 9, 2, 10, 1),
    Sketcher.Constraint("Coincident", 10, 2, 11, 1),
    Sketcher.Constraint("Coincident", 11, 2, 12, 1),
    Sketcher.Constraint("Coincident", 12, 2, 13, 2),
    Sketcher.Constraint("Coincident", 13, 1, 0, 1),
    Sketcher.Constraint("Vertical", 0),
    Sketcher.Constraint("Horizontal", 1),
    Sketcher.Constraint("Vertical", 2),
    Sketcher.Constraint("Horizontal", 3),
    Sketcher.Constraint("Vertical", 4),
    Sketcher.Constraint("Horizontal", 5),
    Sketcher.Constraint("Vertical", 6),
    Sketcher.Constraint("Horizontal", 7),
    Sketcher.Constraint("Vertical", 8),
    Sketcher.Constraint("Horizontal", 9),
    Sketcher.Constraint("Vertical", 10),
    Sketcher.Constraint("Horizontal", 11),
    Sketcher.Constraint("Vertical", 12),
    Sketcher.Constraint("Coincident", 13, 3, -1, 1),
    Sketcher.Constraint("Horizontal", 1, 2, 4, 2),
    Sketcher.Constraint("Vertical", 4, 2, 9, 2),
    Sketcher.Constraint("Vertical", 2, 2, 11, 2),
    Sketcher.Constraint("Equal", 4, 10),
    Sketcher.Constraint("Radius", 13, 50.0),
    Sketcher.Constraint("DistanceY", 2, 1, 2, 2, 6.0),
    Sketcher.Constraint("DistanceX", 3, 2, 3, 1, 2.4),
    Sketcher.Constraint("DistanceX", 1, 2, 1, 1, 4.25),
    Sketcher.Constraint("DistanceX", 5, 2, 5, 1, 16.82),
    Sketcher.Constraint("DistanceX", 1, 2, -1, 1, 11.4),
    Sketcher.Constraint("DistanceY", 8, 2, 5, 2, 23.5),
    Sketcher.Constraint("DistanceY", 6, 2, 6, 1, 28.351711),
    Sketcher.Constraint("DistanceY", -1, 1, 0, 2, 73.0757),
    Sketcher.Constraint("DistanceX", 7, 1, 7, 2, 3.704655),
])
pocket4 = body.newObject("PartDesign::Pocket", "Pocket003")
pocket4.Profile = sketch10
pocket4.Length = 30

# Sketch on XZ plane
sketch11 = body.newObject("Sketcher::SketchObject", "Sketch010")
sketch11.AttachmentSupport = (doc.getObject("XZ_Plane"), [""])
sketch11.MapMode = "FlatFace"
sketch11.addGeometry([
    Part.LineSegment(App.Vector(-29, 41, 0), App.Vector(-34, 45, 0)),
    Part.LineSegment(App.Vector(-34, 45, 0), App.Vector(-34, 37, 0)),
    Part.ArcOfCircle(Part.Circle(App.Vector(0, 0, 0), App.Vector(0, 0, 1), 50), math.radians(125.56), math.radians(132.25)),
], False)
sketch11.addConstraint([
    Sketcher.Constraint("Coincident", 0, 2, 1, 1),
    Sketcher.Constraint("Coincident", 1, 2, 2, 2),
    Sketcher.Constraint("Coincident", 2, 1, 0, 1),
    Sketcher.Constraint("Vertical", 1),
    Sketcher.Constraint("Coincident", 2, 3, -1, 1),
    Sketcher.Constraint("Radius", 2, 50.0),
    Sketcher.Constraint("Angle", 0, Q("135 deg")),
    Sketcher.Constraint("DistanceX", 0, 2, -1, 1, 33.62),
    Sketcher.Constraint("DistanceY", 1, 2, 1, 1, 8.207152),
])
pad7 = body.newObject("PartDesign::Pad", "Pad006")
pad7.Profile = sketch11
pad7.Length = 3
pad7.Reversed = True

# Sketch on XZ plane
sketch12 = body.newObject("Sketcher::SketchObject", "Sketch011")
sketch12.AttachmentSupport = (doc.getObject("XZ_Plane"), [""])
sketch12.MapMode = "FlatFace"
sketch12.addGeometry([
    Part.LineSegment(App.Vector(-22.3, 49.6, 0), App.Vector(-19, 46.3, 0)),
    Part.ArcOfCircle(Part.Circle(App.Vector(0, 0, 0), App.Vector(0, 0, 1), 50), math.radians(106.02), math.radians(112.29)),
    Part.LineSegment(App.Vector(-13.8, 48.1, 0), App.Vector(-13.8, 49.6, 0)),
    Part.LineSegment(App.Vector(-13.8, 49.6, 0), App.Vector(-22.3, 49.6, 0)),
], False)
sketch12.addConstraint([
    Sketcher.Constraint("Coincident", 0, 2, 1, 2),
    Sketcher.Constraint("Coincident", 1, 1, 2, 1),
    Sketcher.Constraint("Coincident", 2, 2, 3, 1),
    Sketcher.Constraint("Coincident", 3, 2, 0, 1),
    Sketcher.Constraint("Vertical", 2),
    Sketcher.Constraint("Horizontal", 3),
    Sketcher.Constraint("Coincident", 1, 3, -1, 1),
    Sketcher.Constraint("Radius", 1, 50.0),
    Sketcher.Constraint("Angle", 0, Q("-45 deg")),
    Sketcher.Constraint("DistanceX", 1, 1, -1, 1, 13.8),
    Sketcher.Constraint("DistanceY", -1, 1, 2, 2, 49.5757),
    Sketcher.Constraint("DistanceX", 3, 2, 3, 1, 8.481378),
])
pad8 = body.newObject("PartDesign::Pad", "Pad007")
pad8.Profile = sketch12
pad8.Length = 3
pad8.Reversed = True
body2 = doc.addObject("PartDesign::Body", "Body001")

# Sketch on XZ plane
sketch13 = body2.newObject("Sketcher::SketchObject", "Sketch012")
sketch13.AttachmentSupport = (doc.getObject("XZ_Plane001"), [""])
sketch13.MapMode = "FlatFace"
sketch13.AttachmentOffset = App.Placement(App.Vector(0, 0, 30), App.Rotation())
sketch13.addGeometry([
    Part.LineSegment(App.Vector(-24.6, 39.1, 0), App.Vector(-26.4, 40.9, 0)),  # 0
    Part.LineSegment(App.Vector(-26.4, 40.9, 0), App.Vector(-27.9, 39.5, 0)),  # 1
    Part.LineSegment(App.Vector(-27.9, 39.5, 0), App.Vector(-21.4, 33, 0)),  # 2
    Part.LineSegment(App.Vector(-21.4, 33, 0), App.Vector(-33, 21.4, 0)),  # 3
    Part.LineSegment(App.Vector(-33, 21.4, 0), App.Vector(-39.5, 27.9, 0)),  # 4
    Part.LineSegment(App.Vector(-39.5, 27.9, 0), App.Vector(-40.9, 26.4, 0)),  # 5
    Part.LineSegment(App.Vector(-40.9, 26.4, 0), App.Vector(-39.1, 24.6, 0)),  # 6
    Part.LineSegment(App.Vector(-39.1, 24.6, 0), App.Vector(-41.2, 22.5, 0)),  # 7
    Part.ArcOfCircle(Part.Circle(App.Vector(-39.1, 20.3, 0), App.Vector(0, 0, 1), 3), math.radians(135), math.radians(315)),  # 8
    Part.LineSegment(App.Vector(-36.9, 18.2, 0), App.Vector(-34.8, 20.3, 0)),  # 9
    Part.LineSegment(App.Vector(-34.8, 20.3, 0), App.Vector(-33, 18.5, 0)),  # 10
    Part.LineSegment(App.Vector(-33, 18.5, 0), App.Vector(-18.5, 33, 0)),  # 11
    Part.LineSegment(App.Vector(-18.5, 33, 0), App.Vector(-20.3, 34.8, 0)),  # 12
    Part.LineSegment(App.Vector(-20.3, 34.8, 0), App.Vector(-18.2, 36.9, 0)),  # 13
    Part.ArcOfCircle(Part.Circle(App.Vector(-20.3, 39.1, 0), App.Vector(0, 0, 1), 3), math.radians(-45), math.radians(135)),  # 14
    Part.LineSegment(App.Vector(-22.5, 41.2, 0), App.Vector(-24.6, 39.1, 0)),  # 15
    Part.Circle(App.Vector(-20.3, 39.1, 0), App.Vector(0, 0, 1), 1.2),  # 16
    Part.Circle(App.Vector(-39.1, 20.3, 0), App.Vector(0, 0, 1), 1.2),  # 17
], False)
sketch13.addConstraint([
    Sketcher.Constraint("Coincident", 0, 2, 1, 1),
    Sketcher.Constraint("Coincident", 1, 2, 2, 1),
    Sketcher.Constraint("Coincident", 2, 2, 3, 1),
    Sketcher.Constraint("Coincident", 3, 2, 4, 1),
    Sketcher.Constraint("Coincident", 4, 2, 5, 1),
    Sketcher.Constraint("Coincident", 5, 2, 6, 1),
    Sketcher.Constraint("Coincident", 6, 2, 7, 1),
    Sketcher.Constraint("Tangent", 7, 2, 8, 1),
    Sketcher.Constraint("Tangent", 8, 2, 9, 1),
    Sketcher.Constraint("Coincident", 9, 2, 10, 1),
    Sketcher.Constraint("Coincident", 10, 2, 11, 1),
    Sketcher.Constraint("Coincident", 11, 2, 12, 1),
    Sketcher.Constraint("Coincident", 12, 2, 13, 1),
    Sketcher.Constraint("Tangent", 13, 2, 14, 1),
    Sketcher.Constraint("Tangent", 14, 2, 15, 1),
    Sketcher.Constraint("Coincident", 15, 2, 0, 1),
    Sketcher.Constraint("Coincident", 16, 3, 14, 3),
    Sketcher.Constraint("Coincident", 17, 3, 8, 3),
    Sketcher.Constraint("Equal", 8, 14),
    Sketcher.Constraint("Equal", 16, 17),
    Sketcher.Constraint("Perpendicular", 0, 1),
    Sketcher.Constraint("Perpendicular", 1, 2),
    Sketcher.Constraint("Perpendicular", 2, 3),
    Sketcher.Constraint("Perpendicular", 3, 4),
    Sketcher.Constraint("Perpendicular", 4, 5),
    Sketcher.Constraint("Perpendicular", 5, 6),
    Sketcher.Constraint("Perpendicular", 6, 7),
    Sketcher.Constraint("Parallel", 7, 9),
    Sketcher.Constraint("Perpendicular", 9, 10),
    Sketcher.Constraint("Perpendicular", 10, 11),
    Sketcher.Constraint("Perpendicular", 11, 12),
    Sketcher.Constraint("Perpendicular", 12, 13),
    Sketcher.Constraint("Parallel", 13, 15),
    Sketcher.Constraint("Horizontal", 17, 3, 9, 2),
    Sketcher.Constraint("Horizontal", 2, 2, 11, 2),
    Sketcher.Constraint("Horizontal", 16, 3, 15, 2),
    Sketcher.Constraint("Vertical", 17, 3, 6, 2),
    Sketcher.Constraint("Vertical", 3, 2, 10, 2),
    Sketcher.Constraint("Vertical", 16, 3, 12, 2),
    Sketcher.Constraint("Equal", 2, 4),
    Sketcher.Constraint("Equal", 1, 5),
    Sketcher.Constraint("Equal", 0, 6),
    Sketcher.Constraint("Equal", 6, 10),
    Sketcher.Constraint("Diameter", 16, 2.4),
    Sketcher.Constraint("Radius", 8, 3.05),
    Sketcher.Constraint("Distance", 1, 2.0),
    Sketcher.Constraint("Distance", 2, 9.2),
    Sketcher.Constraint("Distance", 3, 16.4),
    Sketcher.Constraint("DistanceX", 9, 2, -1, 1, 34.754298),
    Sketcher.Constraint("DistanceY", -1, 1, 12, 2, 34.754298),
])
pad9 = body2.newObject("PartDesign::Pad", "Pad008")
pad9.Profile = sketch13
pad9.Length = 2.5
pad9.Reversed = True

# Sketch on XZ plane
sketch14 = body2.newObject("Sketcher::SketchObject", "Sketch013")
sketch14.AttachmentSupport = (doc.getObject("XZ_Plane001"), [""])
sketch14.MapMode = "FlatFace"
sketch14.AttachmentOffset = App.Placement(App.Vector(0, 0, 27.5), App.Rotation())
sketch14.addGeometry([
    Part.LineSegment(App.Vector(-47.3, 20, 0), App.Vector(-40.9, 26.4, 0)),  # 0
    Part.LineSegment(App.Vector(-40.9, 26.4, 0), App.Vector(-39.1, 24.6, 0)),  # 1
    Part.LineSegment(App.Vector(-39.1, 24.6, 0), App.Vector(-41.2, 22.5, 0)),  # 2
    Part.ArcOfCircle(Part.Circle(App.Vector(-39.1, 20.3, 0), App.Vector(0, 0, 1), 3), math.radians(135), math.radians(315)),  # 3
    Part.LineSegment(App.Vector(-36.9, 18.2, 0), App.Vector(-34.8, 20.3, 0)),  # 4
    Part.LineSegment(App.Vector(-34.8, 20.3, 0), App.Vector(-33, 18.5, 0)),  # 5
    Part.LineSegment(App.Vector(-33, 18.5, 0), App.Vector(-18.5, 33, 0)),  # 6
    Part.LineSegment(App.Vector(-18.5, 33, 0), App.Vector(-20.3, 34.8, 0)),  # 7
    Part.LineSegment(App.Vector(-20.3, 34.8, 0), App.Vector(-18.2, 36.9, 0)),  # 8
    Part.ArcOfCircle(Part.Circle(App.Vector(-20.3, 39.1, 0), App.Vector(0, 0, 1), 3), math.radians(-45), math.radians(135)),  # 9
    Part.LineSegment(App.Vector(-22.5, 41.2, 0), App.Vector(-24.6, 39.1, 0)),  # 10
    Part.LineSegment(App.Vector(-24.6, 39.1, 0), App.Vector(-26.4, 40.9, 0)),  # 11
    Part.LineSegment(App.Vector(-26.4, 40.9, 0), App.Vector(-20, 47.3, 0)),  # 12
    Part.LineSegment(App.Vector(-20, 47.3, 0), App.Vector(-10, 37.3, 0)),  # 13
    Part.LineSegment(App.Vector(-10, 37.3, 0), App.Vector(-37.3, 10, 0)),  # 14
    Part.LineSegment(App.Vector(-37.3, 10, 0), App.Vector(-47.3, 20, 0)),  # 15
], False)
sketch14.addConstraint([
    Sketcher.Constraint("Coincident", 0, 2, 1, 1),
    Sketcher.Constraint("Coincident", 1, 2, 2, 1),
    Sketcher.Constraint("Tangent", 2, 2, 3, 1),
    Sketcher.Constraint("Tangent", 3, 2, 4, 1),
    Sketcher.Constraint("Coincident", 4, 2, 5, 1),
    Sketcher.Constraint("Coincident", 5, 2, 6, 1),
    Sketcher.Constraint("Coincident", 6, 2, 7, 1),
    Sketcher.Constraint("Coincident", 7, 2, 8, 1),
    Sketcher.Constraint("Tangent", 8, 2, 9, 1),
    Sketcher.Constraint("Tangent", 9, 2, 10, 1),
    Sketcher.Constraint("Coincident", 10, 2, 11, 1),
    Sketcher.Constraint("Coincident", 11, 2, 12, 1),
    Sketcher.Constraint("Coincident", 12, 2, 13, 1),
    Sketcher.Constraint("Coincident", 13, 2, 14, 1),
    Sketcher.Constraint("Coincident", 14, 2, 15, 1),
    Sketcher.Constraint("Coincident", 15, 2, 0, 1),
    Sketcher.Constraint("Equal", 3, 9),
    Sketcher.Constraint("Perpendicular", 0, 1),
    Sketcher.Constraint("Perpendicular", 1, 2),
    Sketcher.Constraint("Parallel", 2, 4),
    Sketcher.Constraint("Perpendicular", 4, 5),
    Sketcher.Constraint("Perpendicular", 5, 6),
    Sketcher.Constraint("Perpendicular", 6, 7),
    Sketcher.Constraint("Perpendicular", 7, 8),
    Sketcher.Constraint("Parallel", 8, 10),
    Sketcher.Constraint("Perpendicular", 10, 11),
    Sketcher.Constraint("Perpendicular", 11, 12),
    Sketcher.Constraint("Perpendicular", 12, 13),
    Sketcher.Constraint("Perpendicular", 13, 14),
    Sketcher.Constraint("Perpendicular", 14, 15),
    Sketcher.Constraint("Horizontal", 3, 3, 4, 2),
    Sketcher.Constraint("Horizontal", 9, 3, 10, 2),
    Sketcher.Constraint("Vertical", 3, 3, 1, 2),
    Sketcher.Constraint("Vertical", 9, 3, 7, 2),
    Sketcher.Constraint("Equal", 2, 4),
    Sketcher.Constraint("Equal", 1, 5),
    Sketcher.Constraint("Equal", 5, 7),
    Sketcher.Constraint("Equal", 7, 11),
    Sketcher.Constraint("Equal", 0, 12),
    Sketcher.Constraint("Radius", 3, 3.05),
    Sketcher.Constraint("Distance", 0, 9.1),
    Sketcher.Constraint("Distance", 6, 20.4),
    Sketcher.Constraint("Distance", 13, 14.2),
    Sketcher.Constraint("Distance", 1, 2.55),
    Sketcher.Constraint("DistanceX", 4, 2, -1, 1, 34.754298),
    Sketcher.Constraint("DistanceY", -1, 1, 7, 2, 34.754298),
])
pad10 = body2.newObject("PartDesign::Pad", "Pad009")
pad10.Profile = sketch14
pad10.Length = 6

# Sketch on XZ plane
sketch15 = body2.newObject("Sketcher::SketchObject", "Sketch014")
sketch15.AttachmentSupport = (doc.getObject("XZ_Plane001"), [""])
sketch15.MapMode = "FlatFace"
sketch15.AttachmentOffset = App.Placement(App.Vector(0, 0, 27.5), App.Rotation())
sketch15.addGeometry([
    Part.Circle(App.Vector(-39.1, 20.3, 0), App.Vector(0, 0, 1), 1.2),
    Part.Circle(App.Vector(-20.3, 39.1, 0), App.Vector(0, 0, 1), 1.2),
], False)
sketch15.addConstraint([
    Sketcher.Constraint("Equal", 0, 1),
    Sketcher.Constraint("Diameter", 0, 2.4),
    Sketcher.Constraint("DistanceX", 0, 3, -1, 1, 39.06765),
    Sketcher.Constraint("DistanceY", -1, 1, 0, 3, 20.32932),
    Sketcher.Constraint("DistanceX", 1, 3, -1, 1, 20.32932),
    Sketcher.Constraint("DistanceY", -1, 1, 1, 3, 39.06765),
])
pad11 = body2.newObject("PartDesign::Pad", "Pad010")
pad11.Profile = sketch15
pad11.Length = 6

# Sketch on an angled plane
sketch16 = body2.newObject("Sketcher::SketchObject", "Sketch015")
sketch16.Placement = App.Placement(App.Vector(-33.658283, 0, 33.658283), App.Rotation(App.Vector(0.707106781, 0, 0.707106781), App.Vector(0, 0.999999999, 0), App.Vector(-0.707106781, 0, 0.707106781), "ZXY"))
sketch16.addGeometry([
    Part.LineSegment(App.Vector(8.2, -30, 0), App.Vector(10.2, -30, 0)),  # 0
    Part.LineSegment(App.Vector(10.2, -30, 0), App.Vector(10.2, -33.5, 0)),  # 1
    Part.LineSegment(App.Vector(10.2, -33.5, 0), App.Vector(19.3, -33.5, 0)),  # 2
    Part.LineSegment(App.Vector(19.3, -33.5, 0), App.Vector(19.3, -27.5, 0)),  # 3
    Part.LineSegment(App.Vector(19.3, -27.5, 0), App.Vector(8.2, -27.5, 0)),  # 4
    Part.LineSegment(App.Vector(8.2, -27.5, 0), App.Vector(8.2, -30, 0)),  # 5
    Part.LineSegment(App.Vector(-10.2, -30, 0), App.Vector(-8.2, -30, 0)),  # 6
    Part.LineSegment(App.Vector(-8.2, -30, 0), App.Vector(-8.2, -27.5, 0)),  # 7
    Part.LineSegment(App.Vector(-8.2, -27.5, 0), App.Vector(-19.3, -27.5, 0)),  # 8
    Part.LineSegment(App.Vector(-19.3, -27.5, 0), App.Vector(-19.3, -33.5, 0)),  # 9
    Part.LineSegment(App.Vector(-19.3, -33.5, 0), App.Vector(-10.2, -33.5, 0)),  # 10
    Part.LineSegment(App.Vector(-10.2, -33.5, 0), App.Vector(-10.2, -30, 0)),  # 11
], False)
sketch16.addConstraint([
    Sketcher.Constraint("Coincident", 0, 2, 1, 1),
    Sketcher.Constraint("Coincident", 1, 2, 2, 1),
    Sketcher.Constraint("Coincident", 2, 2, 3, 1),
    Sketcher.Constraint("Coincident", 3, 2, 4, 1),
    Sketcher.Constraint("Coincident", 4, 2, 5, 1),
    Sketcher.Constraint("Coincident", 5, 2, 0, 1),
    Sketcher.Constraint("Coincident", 6, 2, 7, 1),
    Sketcher.Constraint("Coincident", 7, 2, 8, 1),
    Sketcher.Constraint("Coincident", 8, 2, 9, 1),
    Sketcher.Constraint("Coincident", 9, 2, 10, 1),
    Sketcher.Constraint("Coincident", 10, 2, 11, 1),
    Sketcher.Constraint("Coincident", 11, 2, 6, 1),
    Sketcher.Constraint("Horizontal", 0),
    Sketcher.Constraint("Vertical", 1),
    Sketcher.Constraint("Horizontal", 2),
    Sketcher.Constraint("Vertical", 3),
    Sketcher.Constraint("Horizontal", 4),
    Sketcher.Constraint("Vertical", 5),
    Sketcher.Constraint("Horizontal", 6),
    Sketcher.Constraint("Vertical", 7),
    Sketcher.Constraint("Horizontal", 8),
    Sketcher.Constraint("Vertical", 9),
    Sketcher.Constraint("Horizontal", 10),
    Sketcher.Constraint("Vertical", 11),
    Sketcher.Constraint("Symmetric", 5, 2, 6, 2, -2),
    Sketcher.Constraint("Symmetric", 3, 2, 8, 2, -2),
    Sketcher.Constraint("Symmetric", 1, 2, 10, 2, -2),
    Sketcher.Constraint("DistanceX", 0, 1, 0, 2, 2.0),
    Sketcher.Constraint("DistanceY", 3, 1, 3, 2, 6.0),
    Sketcher.Constraint("DistanceX", 2, 1, 2, 2, 9.1),
    Sketcher.Constraint("DistanceY", 1, 2, 1, 1, 3.5),
    Sketcher.Constraint("DistanceY", 0, 2, -1, 1, 30.0),
    Sketcher.Constraint("DistanceX", -1, 1, 0, 2, 10.2),
])
pad12 = body2.newObject("PartDesign::Pad", "Pad011")
pad12.Profile = sketch16
pad12.Length = 20
body.AllowCompound = True
doc.recompute()

boolean = body.newObject("PartDesign::Boolean", "Boolean")
boolean.Type = "Fuse"
boolean.addObjects([body2])

# Sketch on XZ plane
sketch17 = body.newObject("Sketcher::SketchObject", "Sketch016")
sketch17.AttachmentSupport = (doc.getObject("XZ_Plane"), [""])
sketch17.MapMode = "FlatFace"
sketch17.addGeometry([
    Part.LineSegment(App.Vector(-53.6, 42, 0), App.Vector(-61.4, 34.2, 0)),  # 0
    Part.LineSegment(App.Vector(-61.4, 34.2, 0), App.Vector(-50.8, 23.5, 0)),  # 1
    Part.LineSegment(App.Vector(-50.8, 23.5, 0), App.Vector(-43, 31.4, 0)),  # 2
    Part.LineSegment(App.Vector(-43, 31.4, 0), App.Vector(-53.6, 42, 0)),  # 3
    Part.LineSegment(App.Vector(-30.6, 57.9, 0), App.Vector(-34.2, 61.4, 0)),  # 4
    Part.LineSegment(App.Vector(-34.2, 61.4, 0), App.Vector(-42, 53.6, 0)),  # 5
    Part.LineSegment(App.Vector(-42, 53.6, 0), App.Vector(-33.6, 45.2, 0)),  # 6
    Part.LineSegment(App.Vector(-33.6, 45.2, 0), App.Vector(-30.6, 44.7, 0)),  # 7
    Part.LineSegment(App.Vector(-30.6, 44.7, 0), App.Vector(-30.6, 57.9, 0)),  # 8
], False)
sketch17.addConstraint([
    Sketcher.Constraint("Coincident", 0, 2, 1, 1),
    Sketcher.Constraint("Coincident", 1, 2, 2, 1),
    Sketcher.Constraint("Coincident", 2, 2, 3, 1),
    Sketcher.Constraint("Coincident", 3, 2, 0, 1),
    Sketcher.Constraint("Coincident", 4, 2, 5, 1),
    Sketcher.Constraint("Coincident", 5, 2, 6, 1),
    Sketcher.Constraint("Coincident", 6, 2, 7, 1),
    Sketcher.Constraint("Coincident", 7, 2, 8, 1),
    Sketcher.Constraint("Coincident", 8, 2, 4, 1),
    Sketcher.Constraint("Vertical", 8),
    Sketcher.Constraint("Perpendicular", 0, 1),
    Sketcher.Constraint("Perpendicular", 1, 2),
    Sketcher.Constraint("Perpendicular", 2, 3),
    Sketcher.Constraint("Parallel", 3, 4),
    Sketcher.Constraint("Perpendicular", 4, 5),
    Sketcher.Constraint("Perpendicular", 5, 6),
    Sketcher.Constraint("Equal", 2, 5),
    Sketcher.Constraint("Angle", 0, Q("-135 deg")),
    Sketcher.Constraint("Distance", 1, 15.0),
    Sketcher.Constraint("DistanceX", 6, 2, 7, 2, 3.0),
    Sketcher.Constraint("Distance", 0, 11.1),
    Sketcher.Constraint("DistanceX", 6, 2, -1, 1, 33.62),
    Sketcher.Constraint("Distance", 4, 4.996781),
    Sketcher.Constraint("DistanceY", 8, 1, 8, 2, 13.190333),
    Sketcher.Constraint("DistanceX", 0, 2, -1, 1, 61.447579),
    Sketcher.Constraint("DistanceY", -1, 1, 2, 2, 31.395541),
    Sketcher.Constraint("DistanceY", -1, 1, 4, 2, 61.447579),
])
pad13 = body.newObject("PartDesign::Pad", "Pad012")
pad13.Profile = sketch17
pad13.Length = 27.5

doc.recompute()
